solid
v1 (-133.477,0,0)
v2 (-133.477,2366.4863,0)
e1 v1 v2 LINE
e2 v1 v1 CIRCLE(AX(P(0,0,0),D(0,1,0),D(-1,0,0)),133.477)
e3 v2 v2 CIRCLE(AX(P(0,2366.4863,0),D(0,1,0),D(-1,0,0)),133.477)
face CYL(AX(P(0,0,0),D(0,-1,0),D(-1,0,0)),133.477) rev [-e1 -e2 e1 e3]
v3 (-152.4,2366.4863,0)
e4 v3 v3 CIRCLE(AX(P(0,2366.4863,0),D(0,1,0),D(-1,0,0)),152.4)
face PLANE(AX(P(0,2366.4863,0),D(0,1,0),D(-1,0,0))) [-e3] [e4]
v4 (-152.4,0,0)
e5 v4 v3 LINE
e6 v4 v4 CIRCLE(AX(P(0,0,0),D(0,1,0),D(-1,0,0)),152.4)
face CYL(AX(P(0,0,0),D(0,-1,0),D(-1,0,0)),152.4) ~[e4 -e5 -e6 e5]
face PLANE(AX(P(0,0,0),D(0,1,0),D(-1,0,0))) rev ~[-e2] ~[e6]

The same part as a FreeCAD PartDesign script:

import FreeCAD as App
import Part
import Sketcher
Q = App.Units.Quantity

doc = App.newDocument("Part")
params = doc.addObject("Spreadsheet::Sheet", "Params")
for row, (alias, value) in enumerate([
    ("sketch1_diameter", "12 in"),
    ("sketch1_diameter2", "10.51 in"),
    ("pad1_length", "2366.4863 mm"),
], start=1):
    params.set(f"A{row}", alias)
    params.set(f"B{row}", "=" + value)
    params.setAlias(f"B{row}", alias)

body = doc.addObject("PartDesign::Body", "Body")

# Sketch on XZ plane
sketch1 = doc.addObject("Sketcher::SketchObject", "Sketch")
body.addObject(sketch1)
sketch1.AttachmentSupport = (doc.XZ_Plane, [""])
sketch1.MapMode = "FlatFace"
sketch1.addGeometry(Part.Circle(App.Vector(0, 0, 0), App.Vector(0, 0, 1), 152.4), False)
sketch1.addGeometry(Part.Circle(App.Vector(0, 0, 0), App.Vector(0, 0, 1), 133.477), False)
sketch1.addConstraint(Sketcher.Constraint("Coincident", 0, 3, -1, 1))
sketch1.addConstraint(Sketcher.Constraint("Coincident", 1, 3, -1, 1))
sketch1.addConstraint(Sketcher.Constraint("Diameter", 0, Q("12 in")))
sketch1.addConstraint(Sketcher.Constraint("Diameter", 1, Q("10.51 in")))
sketch1.setExpression("Constraints[2]", "Params.sketch1_diameter")
sketch1.setExpression("Constraints[3]", "Params.sketch1_diameter2")
pad1 = doc.addObject("PartDesign::Pad", "Pad")
body.addObject(pad1)
pad1.Profile = sketch1
pad1.setExpression("Length", "Params.pad1_length")
pad1.Reversed = True

doc.recompute()
